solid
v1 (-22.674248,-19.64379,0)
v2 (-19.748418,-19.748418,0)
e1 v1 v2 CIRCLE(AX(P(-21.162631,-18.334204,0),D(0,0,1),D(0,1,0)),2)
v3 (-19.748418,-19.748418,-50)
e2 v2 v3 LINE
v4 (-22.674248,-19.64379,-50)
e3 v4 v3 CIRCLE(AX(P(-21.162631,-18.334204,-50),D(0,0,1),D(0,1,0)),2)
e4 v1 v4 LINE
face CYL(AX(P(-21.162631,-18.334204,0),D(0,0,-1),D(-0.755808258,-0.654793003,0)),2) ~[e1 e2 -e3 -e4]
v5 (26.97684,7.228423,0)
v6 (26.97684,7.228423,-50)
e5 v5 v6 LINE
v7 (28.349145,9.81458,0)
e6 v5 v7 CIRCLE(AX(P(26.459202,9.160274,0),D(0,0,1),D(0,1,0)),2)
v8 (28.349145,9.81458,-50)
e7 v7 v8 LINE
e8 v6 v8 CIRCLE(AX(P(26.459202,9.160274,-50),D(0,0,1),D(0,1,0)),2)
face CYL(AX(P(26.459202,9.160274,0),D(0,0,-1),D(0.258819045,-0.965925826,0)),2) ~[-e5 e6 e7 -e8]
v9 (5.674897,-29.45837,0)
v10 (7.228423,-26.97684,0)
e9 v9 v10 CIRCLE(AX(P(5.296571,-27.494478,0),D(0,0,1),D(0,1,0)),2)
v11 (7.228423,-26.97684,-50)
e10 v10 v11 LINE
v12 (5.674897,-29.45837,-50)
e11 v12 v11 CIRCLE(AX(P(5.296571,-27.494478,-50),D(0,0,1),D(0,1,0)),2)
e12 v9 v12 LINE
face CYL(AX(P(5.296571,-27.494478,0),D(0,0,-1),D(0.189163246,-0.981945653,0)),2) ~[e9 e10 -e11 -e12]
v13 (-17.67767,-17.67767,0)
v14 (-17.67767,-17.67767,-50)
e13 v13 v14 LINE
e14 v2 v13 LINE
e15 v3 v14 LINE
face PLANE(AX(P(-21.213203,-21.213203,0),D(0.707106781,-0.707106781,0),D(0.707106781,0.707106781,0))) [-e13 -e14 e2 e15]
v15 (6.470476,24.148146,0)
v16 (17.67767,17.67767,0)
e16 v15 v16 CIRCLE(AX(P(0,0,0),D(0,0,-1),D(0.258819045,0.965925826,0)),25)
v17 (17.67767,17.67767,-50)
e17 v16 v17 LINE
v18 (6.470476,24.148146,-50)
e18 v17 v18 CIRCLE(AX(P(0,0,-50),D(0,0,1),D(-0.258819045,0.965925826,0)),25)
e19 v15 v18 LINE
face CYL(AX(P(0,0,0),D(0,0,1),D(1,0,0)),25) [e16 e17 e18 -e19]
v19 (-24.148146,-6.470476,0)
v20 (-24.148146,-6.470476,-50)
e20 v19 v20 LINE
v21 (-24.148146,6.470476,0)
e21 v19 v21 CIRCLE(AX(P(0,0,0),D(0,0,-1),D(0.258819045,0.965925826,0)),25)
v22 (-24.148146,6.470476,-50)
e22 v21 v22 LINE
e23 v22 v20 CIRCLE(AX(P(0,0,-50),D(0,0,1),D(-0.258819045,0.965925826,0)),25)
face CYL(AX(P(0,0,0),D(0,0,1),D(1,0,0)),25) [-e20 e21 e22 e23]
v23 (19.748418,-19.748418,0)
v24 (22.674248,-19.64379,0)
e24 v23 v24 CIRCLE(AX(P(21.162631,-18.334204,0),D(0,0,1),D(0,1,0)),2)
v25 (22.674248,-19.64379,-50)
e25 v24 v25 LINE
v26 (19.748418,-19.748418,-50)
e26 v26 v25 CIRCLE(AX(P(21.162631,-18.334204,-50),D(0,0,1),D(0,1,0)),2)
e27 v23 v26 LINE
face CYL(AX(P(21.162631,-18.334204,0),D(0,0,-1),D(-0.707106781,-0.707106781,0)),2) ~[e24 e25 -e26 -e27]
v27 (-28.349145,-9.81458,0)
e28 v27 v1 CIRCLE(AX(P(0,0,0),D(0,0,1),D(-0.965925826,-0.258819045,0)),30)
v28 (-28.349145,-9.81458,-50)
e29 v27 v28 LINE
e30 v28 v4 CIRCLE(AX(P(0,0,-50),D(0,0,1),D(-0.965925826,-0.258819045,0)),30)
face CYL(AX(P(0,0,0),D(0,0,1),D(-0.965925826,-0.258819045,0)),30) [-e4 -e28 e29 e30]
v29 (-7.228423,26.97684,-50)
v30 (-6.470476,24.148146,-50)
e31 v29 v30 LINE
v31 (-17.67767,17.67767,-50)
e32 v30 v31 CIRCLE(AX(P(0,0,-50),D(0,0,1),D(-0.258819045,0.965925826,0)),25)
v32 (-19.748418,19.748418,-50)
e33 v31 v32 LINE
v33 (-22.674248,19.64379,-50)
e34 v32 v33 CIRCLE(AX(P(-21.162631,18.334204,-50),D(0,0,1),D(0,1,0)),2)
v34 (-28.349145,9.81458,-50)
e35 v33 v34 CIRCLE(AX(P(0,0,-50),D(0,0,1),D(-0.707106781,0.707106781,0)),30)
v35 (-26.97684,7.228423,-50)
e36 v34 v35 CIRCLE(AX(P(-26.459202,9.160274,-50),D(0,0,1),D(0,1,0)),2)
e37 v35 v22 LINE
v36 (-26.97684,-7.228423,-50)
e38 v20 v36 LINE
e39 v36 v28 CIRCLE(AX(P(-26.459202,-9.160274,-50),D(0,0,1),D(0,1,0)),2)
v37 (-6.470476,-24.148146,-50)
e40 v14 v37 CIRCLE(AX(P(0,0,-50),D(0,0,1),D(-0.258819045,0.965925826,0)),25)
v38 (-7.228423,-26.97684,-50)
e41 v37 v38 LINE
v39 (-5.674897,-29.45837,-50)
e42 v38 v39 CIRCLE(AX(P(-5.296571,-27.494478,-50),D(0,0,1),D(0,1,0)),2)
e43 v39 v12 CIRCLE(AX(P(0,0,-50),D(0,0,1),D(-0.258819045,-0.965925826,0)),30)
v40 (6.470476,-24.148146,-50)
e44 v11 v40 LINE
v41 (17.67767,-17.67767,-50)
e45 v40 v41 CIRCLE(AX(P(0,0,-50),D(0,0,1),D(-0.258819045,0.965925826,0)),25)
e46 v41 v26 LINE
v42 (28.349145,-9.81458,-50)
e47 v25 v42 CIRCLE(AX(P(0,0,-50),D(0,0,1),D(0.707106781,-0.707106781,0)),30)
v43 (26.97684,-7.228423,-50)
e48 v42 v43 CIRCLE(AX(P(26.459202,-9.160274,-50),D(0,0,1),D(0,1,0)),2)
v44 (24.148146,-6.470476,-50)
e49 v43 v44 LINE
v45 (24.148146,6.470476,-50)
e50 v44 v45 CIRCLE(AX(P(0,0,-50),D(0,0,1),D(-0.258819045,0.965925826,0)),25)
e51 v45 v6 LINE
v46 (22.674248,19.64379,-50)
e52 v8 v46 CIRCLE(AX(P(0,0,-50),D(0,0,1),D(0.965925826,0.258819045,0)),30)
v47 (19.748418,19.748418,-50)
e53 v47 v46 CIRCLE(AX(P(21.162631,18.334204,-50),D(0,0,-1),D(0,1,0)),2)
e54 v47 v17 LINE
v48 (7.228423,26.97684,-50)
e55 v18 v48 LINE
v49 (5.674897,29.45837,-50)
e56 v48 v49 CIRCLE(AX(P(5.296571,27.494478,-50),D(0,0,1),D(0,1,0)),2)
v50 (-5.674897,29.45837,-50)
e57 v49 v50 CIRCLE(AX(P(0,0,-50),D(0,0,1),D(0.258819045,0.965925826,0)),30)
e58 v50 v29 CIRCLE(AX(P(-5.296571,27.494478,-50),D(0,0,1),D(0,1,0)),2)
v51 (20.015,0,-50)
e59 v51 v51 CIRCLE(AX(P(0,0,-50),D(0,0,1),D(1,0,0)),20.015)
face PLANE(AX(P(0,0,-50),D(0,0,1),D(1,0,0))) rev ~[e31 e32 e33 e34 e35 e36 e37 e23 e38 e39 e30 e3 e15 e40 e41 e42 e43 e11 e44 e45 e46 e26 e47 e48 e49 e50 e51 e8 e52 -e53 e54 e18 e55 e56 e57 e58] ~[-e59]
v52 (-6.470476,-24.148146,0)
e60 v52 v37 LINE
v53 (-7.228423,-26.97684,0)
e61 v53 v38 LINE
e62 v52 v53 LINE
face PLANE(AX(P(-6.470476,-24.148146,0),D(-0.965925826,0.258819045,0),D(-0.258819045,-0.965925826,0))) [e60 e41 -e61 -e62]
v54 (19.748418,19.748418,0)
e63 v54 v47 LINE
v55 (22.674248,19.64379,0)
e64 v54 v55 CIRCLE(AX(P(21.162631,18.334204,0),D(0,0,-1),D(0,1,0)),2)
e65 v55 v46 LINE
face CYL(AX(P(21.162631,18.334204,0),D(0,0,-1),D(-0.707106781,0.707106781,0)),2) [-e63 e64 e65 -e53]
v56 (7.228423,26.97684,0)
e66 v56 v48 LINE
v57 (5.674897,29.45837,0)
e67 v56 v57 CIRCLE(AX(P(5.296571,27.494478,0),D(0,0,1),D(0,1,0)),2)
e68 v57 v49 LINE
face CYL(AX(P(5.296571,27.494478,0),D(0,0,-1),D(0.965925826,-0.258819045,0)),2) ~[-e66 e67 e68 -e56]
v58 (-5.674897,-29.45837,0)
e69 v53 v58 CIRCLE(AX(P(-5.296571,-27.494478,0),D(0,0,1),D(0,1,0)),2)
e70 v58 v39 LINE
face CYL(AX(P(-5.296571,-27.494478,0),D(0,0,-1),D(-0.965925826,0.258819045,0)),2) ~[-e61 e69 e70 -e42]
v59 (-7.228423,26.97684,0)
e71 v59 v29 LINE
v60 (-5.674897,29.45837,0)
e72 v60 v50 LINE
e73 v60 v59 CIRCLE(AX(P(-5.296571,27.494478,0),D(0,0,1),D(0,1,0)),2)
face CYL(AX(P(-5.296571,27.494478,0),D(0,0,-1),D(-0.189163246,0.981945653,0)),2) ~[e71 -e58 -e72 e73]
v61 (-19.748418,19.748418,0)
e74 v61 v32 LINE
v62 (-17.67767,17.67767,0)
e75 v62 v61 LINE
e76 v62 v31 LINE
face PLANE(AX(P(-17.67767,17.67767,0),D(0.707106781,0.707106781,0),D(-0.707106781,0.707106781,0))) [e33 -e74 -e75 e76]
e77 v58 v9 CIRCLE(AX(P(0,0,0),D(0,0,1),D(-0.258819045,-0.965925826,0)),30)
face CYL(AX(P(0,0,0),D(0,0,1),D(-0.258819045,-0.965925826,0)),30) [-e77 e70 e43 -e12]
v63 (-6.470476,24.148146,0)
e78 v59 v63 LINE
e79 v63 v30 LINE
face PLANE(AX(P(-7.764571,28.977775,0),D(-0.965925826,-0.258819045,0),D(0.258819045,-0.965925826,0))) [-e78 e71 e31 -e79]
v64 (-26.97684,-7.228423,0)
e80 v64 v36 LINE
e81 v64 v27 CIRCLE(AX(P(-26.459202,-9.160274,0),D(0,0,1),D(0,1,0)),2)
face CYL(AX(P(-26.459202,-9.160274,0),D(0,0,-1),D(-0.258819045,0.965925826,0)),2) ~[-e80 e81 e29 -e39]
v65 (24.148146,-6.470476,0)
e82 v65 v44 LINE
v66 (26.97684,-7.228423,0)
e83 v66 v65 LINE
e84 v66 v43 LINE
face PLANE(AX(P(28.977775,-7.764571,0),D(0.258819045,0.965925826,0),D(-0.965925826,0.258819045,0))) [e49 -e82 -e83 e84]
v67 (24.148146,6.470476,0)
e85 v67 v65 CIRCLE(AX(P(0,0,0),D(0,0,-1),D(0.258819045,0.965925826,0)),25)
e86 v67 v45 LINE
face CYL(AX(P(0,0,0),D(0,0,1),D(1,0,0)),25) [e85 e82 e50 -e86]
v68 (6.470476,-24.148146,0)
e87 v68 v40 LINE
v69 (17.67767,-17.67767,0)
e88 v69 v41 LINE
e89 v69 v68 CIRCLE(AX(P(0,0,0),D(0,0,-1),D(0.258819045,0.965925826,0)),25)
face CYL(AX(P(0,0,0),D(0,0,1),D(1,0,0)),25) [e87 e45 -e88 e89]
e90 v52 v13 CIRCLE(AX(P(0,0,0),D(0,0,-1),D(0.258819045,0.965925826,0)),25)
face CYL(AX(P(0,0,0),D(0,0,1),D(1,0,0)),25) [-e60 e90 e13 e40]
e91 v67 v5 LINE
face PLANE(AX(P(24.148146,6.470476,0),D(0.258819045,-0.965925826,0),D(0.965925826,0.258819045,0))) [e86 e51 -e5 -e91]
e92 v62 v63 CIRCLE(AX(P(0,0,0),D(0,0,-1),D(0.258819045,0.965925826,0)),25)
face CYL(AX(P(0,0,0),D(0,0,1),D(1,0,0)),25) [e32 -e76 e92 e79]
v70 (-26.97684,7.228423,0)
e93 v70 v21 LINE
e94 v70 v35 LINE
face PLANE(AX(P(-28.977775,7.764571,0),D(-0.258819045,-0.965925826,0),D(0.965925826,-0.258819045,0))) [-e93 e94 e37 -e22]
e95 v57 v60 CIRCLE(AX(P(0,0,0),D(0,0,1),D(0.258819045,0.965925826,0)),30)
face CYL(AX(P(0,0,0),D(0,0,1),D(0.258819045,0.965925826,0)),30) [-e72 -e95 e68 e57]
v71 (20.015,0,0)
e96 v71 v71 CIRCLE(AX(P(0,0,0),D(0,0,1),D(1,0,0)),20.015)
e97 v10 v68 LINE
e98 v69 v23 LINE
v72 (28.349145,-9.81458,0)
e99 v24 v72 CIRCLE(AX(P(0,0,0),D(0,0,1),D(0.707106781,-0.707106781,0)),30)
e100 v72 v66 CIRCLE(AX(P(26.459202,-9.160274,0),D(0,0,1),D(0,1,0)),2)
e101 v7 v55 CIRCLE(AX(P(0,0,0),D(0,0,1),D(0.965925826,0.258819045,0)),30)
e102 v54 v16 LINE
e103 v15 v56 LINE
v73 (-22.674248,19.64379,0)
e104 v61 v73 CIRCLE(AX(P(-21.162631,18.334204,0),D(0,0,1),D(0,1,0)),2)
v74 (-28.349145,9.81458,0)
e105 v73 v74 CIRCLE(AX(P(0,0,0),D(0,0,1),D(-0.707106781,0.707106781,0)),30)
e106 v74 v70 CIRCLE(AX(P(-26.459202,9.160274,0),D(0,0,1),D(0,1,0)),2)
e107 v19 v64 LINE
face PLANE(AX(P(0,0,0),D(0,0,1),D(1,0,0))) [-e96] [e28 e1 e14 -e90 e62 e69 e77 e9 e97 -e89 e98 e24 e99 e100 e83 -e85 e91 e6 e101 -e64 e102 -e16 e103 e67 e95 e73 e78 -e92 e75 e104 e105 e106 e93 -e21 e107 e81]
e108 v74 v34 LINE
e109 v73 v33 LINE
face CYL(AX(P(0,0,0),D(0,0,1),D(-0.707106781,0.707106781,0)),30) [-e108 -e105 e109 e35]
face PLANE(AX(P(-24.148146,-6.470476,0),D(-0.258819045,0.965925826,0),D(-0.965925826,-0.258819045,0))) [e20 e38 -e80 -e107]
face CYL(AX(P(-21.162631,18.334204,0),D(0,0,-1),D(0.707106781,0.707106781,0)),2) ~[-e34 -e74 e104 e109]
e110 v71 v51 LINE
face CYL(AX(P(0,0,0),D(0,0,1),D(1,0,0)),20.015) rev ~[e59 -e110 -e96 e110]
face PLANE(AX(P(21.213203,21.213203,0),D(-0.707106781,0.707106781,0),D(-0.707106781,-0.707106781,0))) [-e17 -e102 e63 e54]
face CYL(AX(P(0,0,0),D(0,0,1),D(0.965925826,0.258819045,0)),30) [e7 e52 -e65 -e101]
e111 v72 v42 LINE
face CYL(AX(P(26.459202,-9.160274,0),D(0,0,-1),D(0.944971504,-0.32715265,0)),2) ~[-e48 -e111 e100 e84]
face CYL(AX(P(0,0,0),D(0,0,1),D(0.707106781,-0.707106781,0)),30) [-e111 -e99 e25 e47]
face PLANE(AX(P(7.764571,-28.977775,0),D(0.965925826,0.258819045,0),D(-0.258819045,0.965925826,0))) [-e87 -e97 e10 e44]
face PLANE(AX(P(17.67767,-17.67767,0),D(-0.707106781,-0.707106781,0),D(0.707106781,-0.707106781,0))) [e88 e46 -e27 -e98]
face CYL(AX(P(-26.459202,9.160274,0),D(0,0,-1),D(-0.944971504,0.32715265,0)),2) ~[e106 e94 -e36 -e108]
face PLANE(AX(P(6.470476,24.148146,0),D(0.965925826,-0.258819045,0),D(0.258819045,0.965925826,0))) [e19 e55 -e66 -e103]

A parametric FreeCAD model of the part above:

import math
import FreeCAD as App
import Part
import Sketcher
Q = App.Units.Quantity


def edges_at(feature, points):
    """Names of the edges that pass closest to the given points."""
    edges = feature.Shape.Edges
    near = lambda p: min(range(len(edges)), key=lambda i: edges[i].distToShape(Part.Vertex(*p))[0])
    return sorted({f"Edge{near(p) + 1}" for p in points})

doc = App.newDocument("Part")
params = doc.addObject("Spreadsheet::Sheet", "Params")
for row, (alias, value) in enumerate([
    ("sketch1_diameter", "50 mm"),
    ("sketch1_diameter2", "40.03 mm"),
    ("pad1_length", "50 mm"),
    ("sketch2_radius", "30 mm"),
    ("sketch2_radius2", "25 mm"),
    ("pad2_length", "50 mm"),
    ("fillet_radius", "2 mm"),
    ("fillet2_radius", "2 mm"),
], start=1):
    params.set(f"A{row}", alias)
    params.set(f"B{row}", "=" + value)
    params.setAlias(f"B{row}", alias)

body = doc.addObject("PartDesign::Body", "Body")

sketch1 = doc.addObject("Sketcher::SketchObject", "Sketch")
body.addObject(sketch1)
sketch1.AttachmentSupport = (doc.XY_Plane, [""])
sketch1.MapMode = "FlatFace"
sketch1.addGeometry(Part.Circle(App.Vector(0, 0, 0), App.Vector(0, 0, 1), 25), False)
sketch1.addGeometry(Part.Circle(App.Vector(0, 0, 0), App.Vector(0, 0, 1), 20), False)
sketch1.addConstraint(Sketcher.Constraint("Coincident", 0, 3, -1, 1))
sketch1.addConstraint(Sketcher.Constraint("Coincident", 1, 3, -1, 1))
sketch1.addConstraint(Sketcher.Constraint("Diameter", 0, Q("50 mm")))
sketch1.addConstraint(Sketcher.Constraint("Diameter", 1, Q("40.03 mm")))
sketch1.setExpression("Constraints[2]", "Params.sketch1_diameter")
sketch1.setExpression("Constraints[3]", "Params.sketch1_diameter2")
pad1 = doc.addObject("PartDesign::Pad", "Pad")
body.addObject(pad1)
pad1.Profile = sketch1
pad1.setExpression("Length", "Params.pad1_length")
pad1.Reversed = True

sketch2 = doc.addObject("Sketcher::SketchObject", "Sketch001")
body.addObject(sketch2)
sketch2.AttachmentSupport = (doc.XY_Plane, [""])
sketch2.MapMode = "FlatFace"
sketch2.addGeometry(Part.LineSegment(App.Vector(6, 24, 0), App.Vector(8, 29, 0)), False)
sketch2.addGeometry(Part.ArcOfCircle(Part.Circle(App.Vector(0, 0, 0), App.Vector(0, 0, 1), 30), math.radians(75), math.radians(105)), False)
sketch2.addGeometry(Part.LineSegment(App.Vector(-8, 29, 0), App.Vector(-6, 24, 0)), False)
sketch2.addGeometry(Part.ArcOfCircle(Part.Circle(App.Vector(0, 0, 0), App.Vector(0, 0, 1), 25), math.radians(75), math.radians(105)), False)
sketch2.addConstraint(Sketcher.Constraint("Coincident", 0, 2, 1, 1))
sketch2.addConstraint(Sketcher.Constraint("Coincident", 1, 2, 2, 1))
sketch2.addConstraint(Sketcher.Constraint("Coincident", 2, 2, 3, 2))
sketch2.addConstraint(Sketcher.Constraint("Coincident", 3, 1, 0, 1))
sketch2.addConstraint(Sketcher.Constraint("Coincident", 1, 3, -1, 1))
sketch2.addConstraint(Sketcher.Constraint("Coincident", 3, 3, -1, 1))
sketch2.addConstraint(Sketcher.Constraint("Horizontal", 0, 2, 1, 2))
sketch2.addConstraint(Sketcher.Constraint("Horizontal", 2, 2, 3, 1))
sketch2.addConstraint(Sketcher.Constraint("Radius", 1, Q("30 mm")))
sketch2.addConstraint(Sketcher.Constraint("Radius", 3, Q("25 mm")))
sketch2.addConstraint(Sketcher.Constraint("Angle", 0, Q("75 deg")))
sketch2.addConstraint(Sketcher.Constraint("DistanceX", -1, 1, 0, 2, Q("7.764571 mm")))
sketch2.setExpression("Constraints[8]", "Params.sketch2_radius")
sketch2.setExpression("Constraints[9]", "Params.sketch2_radius2")
pad2 = doc.addObject("PartDesign::Pad", "Pad001")
body.addObject(pad2)
pad2.Profile = sketch2
pad2.setExpression("Length", "Params.pad2_length")
pad2.Reversed = True
doc.recompute()

fillet = doc.addObject("PartDesign::Fillet", "Fillet")
body.addObject(fillet)
fillet.Base = (pad2, edges_at(pad2, [(-7.765, 28.978, -25), (7.765, 28.978, -25)]))
fillet.setExpression("Radius", "Params.fillet_radius")
doc.recompute()

polarpattern = doc.addObject("PartDesign::PolarPattern", "PolarPattern")
body.addObject(polarpattern)
polarpattern.Originals = [pad2]
polarpattern.Axis = (doc.Z_Axis, [""])
polarpattern.Angle = 360
polarpattern.Occurrences = 6
body.Tip = polarpattern
doc.recompute()

fillet2 = doc.addObject("PartDesign::Fillet", "Fillet001")
body.addObject(fillet2)
fillet2.Base = (polarpattern, edges_at(polarpattern, [
    (-28.978, 7.765, -25),
    (-21.213, 21.213, -25),
    (-21.213, -21.213, -25),
    (-28.978, -7.765, -25),
    (7.765, -28.978, -25),
    (-7.765, -28.978, -25),
    (28.978, -7.765, -25),
    (21.213, -21.213, -25),
    (21.213, 21.213, -25),
    (28.978, 7.765, -25),
]))
fillet2.setExpression("Radius", "Params.fillet2_radius")

doc.recompute()
